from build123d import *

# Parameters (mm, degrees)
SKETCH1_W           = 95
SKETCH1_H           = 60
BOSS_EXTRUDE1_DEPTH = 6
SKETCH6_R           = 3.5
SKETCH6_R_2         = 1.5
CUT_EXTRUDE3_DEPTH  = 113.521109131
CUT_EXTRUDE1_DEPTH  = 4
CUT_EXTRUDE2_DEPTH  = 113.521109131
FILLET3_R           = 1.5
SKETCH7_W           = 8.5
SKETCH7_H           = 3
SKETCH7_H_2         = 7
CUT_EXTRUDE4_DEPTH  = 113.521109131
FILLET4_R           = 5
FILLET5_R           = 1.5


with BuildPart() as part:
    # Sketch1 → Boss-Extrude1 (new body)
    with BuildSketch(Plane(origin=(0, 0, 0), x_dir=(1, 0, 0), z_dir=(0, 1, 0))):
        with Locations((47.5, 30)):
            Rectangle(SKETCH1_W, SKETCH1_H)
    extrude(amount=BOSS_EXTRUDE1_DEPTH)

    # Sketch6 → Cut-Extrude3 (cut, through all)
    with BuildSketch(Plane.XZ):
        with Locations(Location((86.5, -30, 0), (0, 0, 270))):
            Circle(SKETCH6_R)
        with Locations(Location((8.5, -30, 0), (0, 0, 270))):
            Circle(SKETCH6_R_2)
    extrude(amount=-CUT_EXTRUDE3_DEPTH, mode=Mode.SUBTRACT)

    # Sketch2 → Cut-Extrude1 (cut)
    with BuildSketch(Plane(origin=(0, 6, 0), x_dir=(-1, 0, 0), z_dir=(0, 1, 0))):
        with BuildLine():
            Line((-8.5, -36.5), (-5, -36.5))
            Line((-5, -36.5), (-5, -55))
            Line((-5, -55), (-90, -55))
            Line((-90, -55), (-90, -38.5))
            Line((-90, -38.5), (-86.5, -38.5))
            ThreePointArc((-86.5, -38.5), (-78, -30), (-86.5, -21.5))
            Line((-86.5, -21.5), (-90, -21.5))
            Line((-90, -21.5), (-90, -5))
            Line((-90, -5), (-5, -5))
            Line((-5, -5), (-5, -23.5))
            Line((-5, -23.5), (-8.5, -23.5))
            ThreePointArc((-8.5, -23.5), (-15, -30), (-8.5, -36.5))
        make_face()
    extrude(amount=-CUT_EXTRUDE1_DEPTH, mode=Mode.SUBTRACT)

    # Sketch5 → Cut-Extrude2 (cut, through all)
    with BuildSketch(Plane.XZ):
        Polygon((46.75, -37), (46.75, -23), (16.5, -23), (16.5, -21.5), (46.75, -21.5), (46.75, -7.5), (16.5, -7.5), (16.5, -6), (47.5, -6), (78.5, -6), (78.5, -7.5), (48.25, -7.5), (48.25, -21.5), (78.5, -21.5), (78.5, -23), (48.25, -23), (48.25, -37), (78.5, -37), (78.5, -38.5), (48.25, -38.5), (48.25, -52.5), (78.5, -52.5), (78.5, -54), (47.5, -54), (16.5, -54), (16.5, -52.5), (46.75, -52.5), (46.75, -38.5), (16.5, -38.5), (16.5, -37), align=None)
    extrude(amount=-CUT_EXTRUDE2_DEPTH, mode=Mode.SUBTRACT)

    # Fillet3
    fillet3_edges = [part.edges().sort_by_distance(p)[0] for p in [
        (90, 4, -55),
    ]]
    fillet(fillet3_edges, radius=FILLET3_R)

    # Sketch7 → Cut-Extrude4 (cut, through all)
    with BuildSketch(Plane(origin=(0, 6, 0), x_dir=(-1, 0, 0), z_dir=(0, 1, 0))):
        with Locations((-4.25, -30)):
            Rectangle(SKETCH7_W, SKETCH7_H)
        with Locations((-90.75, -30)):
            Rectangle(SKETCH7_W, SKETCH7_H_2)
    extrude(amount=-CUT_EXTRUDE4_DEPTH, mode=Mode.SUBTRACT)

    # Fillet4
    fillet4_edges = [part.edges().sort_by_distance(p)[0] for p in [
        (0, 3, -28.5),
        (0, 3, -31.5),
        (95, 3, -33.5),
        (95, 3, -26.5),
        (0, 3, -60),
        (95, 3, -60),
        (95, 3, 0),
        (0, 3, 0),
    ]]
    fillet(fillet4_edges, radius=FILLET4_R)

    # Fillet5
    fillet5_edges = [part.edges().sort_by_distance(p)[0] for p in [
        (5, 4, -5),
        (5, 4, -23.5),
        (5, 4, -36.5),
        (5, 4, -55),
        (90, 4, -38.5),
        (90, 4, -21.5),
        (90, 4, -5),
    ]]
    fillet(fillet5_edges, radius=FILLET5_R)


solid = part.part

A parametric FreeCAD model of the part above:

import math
import FreeCAD as App
import Part
import Sketcher
from FreeCAD import Vector
Q = App.Units.Quantity


def edges_at(feature, points):
    """Names of the edges that pass closest to the given points."""
    edges = feature.Shape.Edges
    near = lambda p: min(range(len(edges)), key=lambda i: edges[i].distToShape(Part.Vertex(*p))[0])
    return sorted({f"Edge{near(p) + 1}" for p in points})

doc = App.newDocument("Part")
body = doc.addObject("PartDesign::Body", "Body")

sketch1 = doc.addObject("Sketcher::SketchObject", "Sketch")
body.addObject(sketch1)
sketch1.AttachmentSupport = (doc.XZ_Plane, [""])
sketch1.MapMode = "FlatFace"
sketch1.addGeometry(Part.LineSegment(Vector(0, -60, 0), Vector(0, 0, 0)), False)
sketch1.addGeometry(Part.LineSegment(Vector(0, 0, 0), Vector(95, 0, 0)), False)
sketch1.addGeometry(Part.LineSegment(Vector(95, 0, 0), Vector(95, -60, 0)), False)
sketch1.addGeometry(Part.LineSegment(Vector(95, -60, 0), Vector(0, -60, 0)), False)
sketch1.addConstraint(Sketcher.Constraint("Coincident", 0, 2, 1, 1))
sketch1.addConstraint(Sketcher.Constraint("Coincident", 1, 2, 2, 1))
sketch1.addConstraint(Sketcher.Constraint("Coincident", 2, 2, 3, 1))
sketch1.addConstraint(Sketcher.Constraint("Coincident", 3, 2, 0, 1))
sketch1.addConstraint(Sketcher.Constraint("Vertical", 0))
sketch1.addConstraint(Sketcher.Constraint("Horizontal", 1))
sketch1.addConstraint(Sketcher.Constraint("Vertical", 2))
sketch1.addConstraint(Sketcher.Constraint("Horizontal", 3))
sketch1.addConstraint(Sketcher.Constraint("Coincident", 0, 2, -1, 1))
sketch1.addConstraint(Sketcher.Constraint("DistanceX", 1, 1, 1, 2, Q("95 mm")))
sketch1.addConstraint(Sketcher.Constraint("DistanceY", 0, 1, 0, 2, Q("60 mm")))
pad1 = doc.addObject("PartDesign::Pad", "Pad")
body.addObject(pad1)
pad1.Profile = sketch1
pad1.Length = 6
pad1.Reversed = True

sketch2 = doc.addObject("Sketcher::SketchObject", "Sketch001")
body.addObject(sketch2)
sketch2.AttachmentSupport = (doc.XZ_Plane, [""])
sketch2.MapMode = "FlatFace"
sketch2.addGeometry(Part.Circle(Vector(86.5, -30, 0), Vector(0, 0, 1), 3.5), False)
sketch2.addGeometry(Part.Circle(Vector(8.5, -30, 0), Vector(0, 0, 1), 1.5), False)
sketch2.addConstraint(Sketcher.Constraint("Horizontal", 0, 3, 1, 3))
sketch2.addConstraint(Sketcher.Constraint("Diameter", 0, Q("7 mm")))
sketch2.addConstraint(Sketcher.Constraint("Diameter", 1, Q("3 mm")))
sketch2.addConstraint(Sketcher.Constraint("DistanceY", 0, 3, -1, 1, Q("30 mm")))
sketch2.addConstraint(Sketcher.Constraint("DistanceX", 1, 3, 0, 3, Q("78 mm")))
sketch2.addConstraint(Sketcher.Constraint("DistanceX", -1, 1, 0, 3, Q("86.5 mm")))
pocket1 = doc.addObject("PartDesign::Pocket", "Pocket")
body.addObject(pocket1)
pocket1.Profile = sketch2
pocket1.Type = "ThroughAll"

sketch3 = doc.addObject("Sketcher::SketchObject", "Sketch002")
body.addObject(sketch3)
sketch3.AttachmentSupport = (doc.XZ_Plane, [""])
sketch3.MapMode = "FlatFace"
sketch3.AttachmentOffset = App.Placement(Vector(0, 0, -6), App.Rotation())
sketch3.addGeometry(Part.LineSegment(Vector(5, -36.5, 0), Vector(8.5, -36.5, 0)), False)
sketch3.addGeometry(Part.ArcOfCircle(Part.Circle(Vector(8.5, -30, 0), Vector(0, 0, 1), 6.5), math.radians(-90), math.radians(90)), False)
sketch3.addGeometry(Part.LineSegment(Vector(8.5, -23.5, 0), Vector(5, -23.5, 0)), False)
sketch3.addGeometry(Part.LineSegment(Vector(5, -23.5, 0), Vector(5, -5, 0)), False)
sketch3.addGeometry(Part.LineSegment(Vector(5, -5, 0), Vector(90, -5, 0)), False)
sketch3.addGeometry(Part.LineSegment(Vector(90, -5, 0), Vector(90, -21.5, 0)), False)
sketch3.addGeometry(Part.LineSegment(Vector(90, -21.5, 0), Vector(86.5, -21.5, 0)), False)
sketch3.addGeometry(Part.ArcOfCircle(Part.Circle(Vector(86.5, -30, 0), Vector(0, 0, 1), 8.5), math.radians(90), math.radians(270)), False)
sketch3.addGeometry(Part.LineSegment(Vector(86.5, -38.5, 0), Vector(90, -38.5, 0)), False)
sketch3.addGeometry(Part.LineSegment(Vector(90, -38.5, 0), Vector(90, -55, 0)), False)
sketch3.addGeometry(Part.LineSegment(Vector(90, -55, 0), Vector(5, -55, 0)), False)
sketch3.addGeometry(Part.LineSegment(Vector(5, -55, 0), Vector(5, -36.5, 0)), False)
sketch3.addConstraint(Sketcher.Constraint("Tangent", 0, 2, 1, 1))
sketch3.addConstraint(Sketcher.Constraint("Tangent", 1, 2, 2, 1))
sketch3.addConstraint(Sketcher.Constraint("Coincident", 2, 2, 3, 1))
sketch3.addConstraint(Sketcher.Constraint("Coincident", 3, 2, 4, 1))
sketch3.addConstraint(Sketcher.Constraint("Coincident", 4, 2, 5, 1))
sketch3.addConstraint(Sketcher.Constraint("Coincident", 5, 2, 6, 1))
sketch3.addConstraint(Sketcher.Constraint("Tangent", 6, 2, 7, 1))
sketch3.addConstraint(Sketcher.Constraint("Tangent", 7, 2, 8, 1))
sketch3.addConstraint(Sketcher.Constraint("Coincident", 8, 2, 9, 1))
sketch3.addConstraint(Sketcher.Constraint("Coincident", 9, 2, 10, 1))
sketch3.addConstraint(Sketcher.Constraint("Coincident", 10, 2, 11, 1))
sketch3.addConstraint(Sketcher.Constraint("Coincident", 11, 2, 0, 1))
sketch3.addConstraint(Sketcher.Constraint("Horizontal", 0))
sketch3.addConstraint(Sketcher.Constraint("Horizontal", 2))
sketch3.addConstraint(Sketcher.Constraint("Vertical", 3))
sketch3.addConstraint(Sketcher.Constraint("Horizontal", 4))
sketch3.addConstraint(Sketcher.Constraint("Vertical", 5))
sketch3.addConstraint(Sketcher.Constraint("Horizontal", 6))
sketch3.addConstraint(Sketcher.Constraint("Horizontal", 8))
sketch3.addConstraint(Sketcher.Constraint("Vertical", 9))
sketch3.addConstraint(Sketcher.Constraint("Horizontal", 10))
sketch3.addConstraint(Sketcher.Constraint("Vertical", 11))
sketch3.addConstraint(Sketcher.Constraint("Horizontal", 1, 3, 7, 3))
sketch3.addConstraint(Sketcher.Constraint("Vertical", 5, 2, 8, 2))
sketch3.addConstraint(Sketcher.Constraint("Vertical", 3, 2, 10, 2))
sketch3.addConstraint(Sketcher.Constraint("Equal", 2, 6))
sketch3.addConstraint(Sketcher.Constraint("Equal", 5, 9))
sketch3.addConstraint(Sketcher.Constraint("Radius", 1, Q("6.5 mm")))
sketch3.addConstraint(Sketcher.Constraint("Radius", 7, Q("8.5 mm")))
sketch3.addConstraint(Sketcher.Constraint("DistanceX", 4, 1, 4, 2, Q("85 mm")))
sketch3.addConstraint(Sketcher.Constraint("DistanceX", 0, 1, 0, 2, Q("3.5 mm")))
sketch3.addConstraint(Sketcher.Constraint("DistanceY", 3, 1, 3, 2, Q("18.5 mm")))
sketch3.addConstraint(Sketcher.Constraint("DistanceY", 1, 3, -1, 1, Q("30 mm")))
sketch3.addConstraint(Sketcher.Constraint("DistanceX", -1, 1, 2, 2, Q("5 mm")))
pocket2 = doc.addObject("PartDesign::Pocket", "Pocket001")
body.addObject(pocket2)
pocket2.Profile = sketch3
pocket2.Length = 4
pocket2.Reversed = True

sketch4 = doc.addObject("Sketcher::SketchObject", "Sketch003")
body.addObject(sketch4)
sketch4.AttachmentSupport = (doc.XZ_Plane, [""])
sketch4.MapMode = "FlatFace"
sketch4.addGeometry(Part.LineSegment(Vector(46.75, -23, 0), Vector(46.75, -37, 0)), False)
sketch4.addGeometry(Part.LineSegment(Vector(46.75, -37, 0), Vector(16.5, -37, 0)), False)
sketch4.addGeometry(Part.LineSegment(Vector(16.5, -37, 0), Vector(16.5, -38.5, 0)), False)
sketch4.addGeometry(Part.LineSegment(Vector(16.5, -38.5, 0), Vector(46.75, -38.5, 0)), False)
sketch4.addGeometry(Part.LineSegment(Vector(46.75, -38.5, 0), Vector(46.75, -52.5, 0)), False)
sketch4.addGeometry(Part.LineSegment(Vector(46.75, -52.5, 0), Vector(16.5, -52.5, 0)), False)
sketch4.addGeometry(Part.LineSegment(Vector(16.5, -52.5, 0), Vector(16.5, -54, 0)), False)
sketch4.addGeometry(Part.LineSegment(Vector(16.5, -54, 0), Vector(78.5, -54, 0)), False)
sketch4.addGeometry(Part.LineSegment(Vector(78.5, -54, 0), Vector(78.5, -52.5, 0)), False)
sketch4.addGeometry(Part.LineSegment(Vector(78.5, -52.5, 0), Vector(48.25, -52.5, 0)), False)
sketch4.addGeometry(Part.LineSegment(Vector(48.25, -52.5, 0), Vector(48.25, -38.5, 0)), False)
sketch4.addGeometry(Part.LineSegment(Vector(48.25, -38.5, 0), Vector(78.5, -38.5, 0)), False)
sketch4.addGeometry(Part.LineSegment(Vector(78.5, -38.5, 0), Vector(78.5, -37, 0)), False)
sketch4.addGeometry(Part.LineSegment(Vector(78.5, -37, 0), Vector(48.25, -37, 0)), False)
sketch4.addGeometry(Part.LineSegment(Vector(48.25, -37, 0), Vector(48.25, -23, 0)), False)
sketch4.addGeometry(Part.LineSegment(Vector(48.25, -23, 0), Vector(78.5, -23, 0)), False)
sketch4.addGeometry(Part.LineSegment(Vector(78.5, -23, 0), Vector(78.5, -21.5, 0)), False)
sketch4.addGeometry(Part.LineSegment(Vector(78.5, -21.5, 0), Vector(48.25, -21.5, 0)), False)
sketch4.addGeometry(Part.LineSegment(Vector(48.25, -21.5, 0), Vector(48.25, -7.5, 0)), False)
sketch4.addGeometry(Part.LineSegment(Vector(48.25, -7.5, 0), Vector(78.5, -7.5, 0)), False)
sketch4.addGeometry(Part.LineSegment(Vector(78.5, -7.5, 0), Vector(78.5, -6, 0)), False)
sketch4.addGeometry(Part.LineSegment(Vector(78.5, -6, 0), Vector(16.5, -6, 0)), False)
sketch4.addGeometry(Part.LineSegment(Vector(16.5, -6, 0), Vector(16.5, -7.5, 0)), False)
sketch4.addGeometry(Part.LineSegment(Vector(16.5, -7.5, 0), Vector(46.75, -7.5, 0)), False)
sketch4.addGeometry(Part.LineSegment(Vector(46.75, -7.5, 0), Vector(46.75, -21.5, 0)), False)
sketch4.addGeometry(Part.LineSegment(Vector(46.75, -21.5, 0), Vector(16.5, -21.5, 0)), False)
sketch4.addGeometry(Part.LineSegment(Vector(16.5, -21.5, 0), Vector(16.5, -23, 0)), False)
sketch4.addGeometry(Part.LineSegment(Vector(16.5, -23, 0), Vector(46.75, -23, 0)), False)
sketch4.addConstraint(Sketcher.Constraint("Coincident", 0, 2, 1, 1))
sketch4.addConstraint(Sketcher.Constraint("Coincident", 1, 2, 2, 1))
sketch4.addConstraint(Sketcher.Constraint("Coincident", 2, 2, 3, 1))
sketch4.addConstraint(Sketcher.Constraint("Coincident", 3, 2, 4, 1))
sketch4.addConstraint(Sketcher.Constraint("Coincident", 4, 2, 5, 1))
sketch4.addConstraint(Sketcher.Constraint("Coincident", 5, 2, 6, 1))
sketch4.addConstraint(Sketcher.Constraint("Coincident", 6, 2, 7, 1))
sketch4.addConstraint(Sketcher.Constraint("Coincident", 7, 2, 8, 1))
sketch4.addConstraint(Sketcher.Constraint("Coincident", 8, 2, 9, 1))
sketch4.addConstraint(Sketcher.Constraint("Coincident", 9, 2, 10, 1))
sketch4.addConstraint(Sketcher.Constraint("Coincident", 10, 2, 11, 1))
sketch4.addConstraint(Sketcher.Constraint("Coincident", 11, 2, 12, 1))
sketch4.addConstraint(Sketcher.Constraint("Coincident", 12, 2, 13, 1))
sketch4.addConstraint(Sketcher.Constraint("Coincident", 13, 2, 14, 1))
sketch4.addConstraint(Sketcher.Constraint("Coincident", 14, 2, 15, 1))
sketch4.addConstraint(Sketcher.Constraint("Coincident", 15, 2, 16, 1))
sketch4.addConstraint(Sketcher.Constraint("Coincident", 16, 2, 17, 1))
sketch4.addConstraint(Sketcher.Constraint("Coincident", 17, 2, 18, 1))
sketch4.addConstraint(Sketcher.Constraint("Coincident", 18, 2, 19, 1))
sketch4.addConstraint(Sketcher.Constraint("Coincident", 19, 2, 20, 1))
sketch4.addConstraint(Sketcher.Constraint("Coincident", 20, 2, 21, 1))
sketch4.addConstraint(Sketcher.Constraint("Coincident", 21, 2, 22, 1))
sketch4.addConstraint(Sketcher.Constraint("Coincident", 22, 2, 23, 1))
sketch4.addConstraint(Sketcher.Constraint("Coincident", 23, 2, 24, 1))
sketch4.addConstraint(Sketcher.Constraint("Coincident", 24, 2, 25, 1))
sketch4.addConstraint(Sketcher.Constraint("Coincident", 25, 2, 26, 1))
sketch4.addConstraint(Sketcher.Constraint("Coincident", 26, 2, 27, 1))
sketch4.addConstraint(Sketcher.Constraint("Coincident", 27, 2, 0, 1))
sketch4.addConstraint(Sketcher.Constraint("Vertical", 0))
sketch4.addConstraint(Sketcher.Constraint("Horizontal", 1))
sketch4.addConstraint(Sketcher.Constraint("Vertical", 2))
sketch4.addConstraint(Sketcher.Constraint("Horizontal", 3))
sketch4.addConstraint(Sketcher.Constraint("Vertical", 4))
sketch4.addConstraint(Sketcher.Constraint("Horizontal", 5))
sketch4.addConstraint(Sketcher.Constraint("Vertical", 6))
sketch4.addConstraint(Sketcher.Constraint("Horizontal", 7))
sketch4.addConstraint(Sketcher.Constraint("Vertical", 8))
sketch4.addConstraint(Sketcher.Constraint("Horizontal", 9))
sketch4.addConstraint(Sketcher.Constraint("Vertical", 10))
sketch4.addConstraint(Sketcher.Constraint("Horizontal", 11))
sketch4.addConstraint(Sketcher.Constraint("Vertical", 12))
sketch4.addConstraint(Sketcher.Constraint("Horizontal", 13))
sketch4.addConstraint(Sketcher.Constraint("Vertical", 14))
sketch4.addConstraint(Sketcher.Constraint("Horizontal", 15))
sketch4.addConstraint(Sketcher.Constraint("Vertical", 16))
sketch4.addConstraint(Sketcher.Constraint("Horizontal", 17))
sketch4.addConstraint(Sketcher.Constraint("Vertical", 18))
sketch4.addConstraint(Sketcher.Constraint("Horizontal", 19))
sketch4.addConstraint(Sketcher.Constraint("Vertical", 20))
sketch4.addConstraint(Sketcher.Constraint("Horizontal", 21))
sketch4.addConstraint(Sketcher.Constraint("Vertical", 22))
sketch4.addConstraint(Sketcher.Constraint("Horizontal", 23))
sketch4.addConstraint(Sketcher.Constraint("Vertical", 24))
sketch4.addConstraint(Sketcher.Constraint("Horizontal", 25))
sketch4.addConstraint(Sketcher.Constraint("Vertical", 26))
sketch4.addConstraint(Sketcher.Constraint("Horizontal", 27))
sketch4.addConstraint(Sketcher.Constraint("Horizontal", 5, 2, 8, 2))
sketch4.addConstraint(Sketcher.Constraint("Horizontal", 3, 2, 10, 2))
sketch4.addConstraint(Sketcher.Constraint("Horizontal", 1, 2, 12, 2))
sketch4.addConstraint(Sketcher.Constraint("Horizontal", 19, 2, 22, 2))
sketch4.addConstraint(Sketcher.Constraint("Horizontal", 17, 2, 24, 2))
sketch4.addConstraint(Sketcher.Constraint("Horizontal", 15, 2, 26, 2))
sketch4.addConstraint(Sketcher.Constraint("Vertical", 0, 2, 3, 2))
sketch4.addConstraint(Sketcher.Constraint("Vertical", 2, 2, 5, 2))
sketch4.addConstraint(Sketcher.Constraint("Vertical", 8, 2, 11, 2))
sketch4.addConstraint(Sketcher.Constraint("Vertical", 10, 2, 13, 2))
sketch4.addConstraint(Sketcher.Constraint("Vertical", 12, 2, 15, 2))
sketch4.addConstraint(Sketcher.Constraint("Vertical", 14, 2, 17, 2))
sketch4.addConstraint(Sketcher.Constraint("Vertical", 16, 2, 19, 2))
sketch4.addConstraint(Sketcher.Constraint("Vertical", 6, 2, 21, 2))
sketch4.addConstraint(Sketcher.Constraint("Vertical", 4, 2, 23, 2))
sketch4.addConstraint(Sketcher.Constraint("Vertical", 22, 2, 25, 2))
sketch4.addConstraint(Sketcher.Constraint("Equal", 5, 9))
sketch4.addConstraint(Sketcher.Constraint("Equal", 0, 4))
sketch4.addConstraint(Sketcher.Constraint("Equal", 2, 6))
sketch4.addConstraint(Sketcher.Constraint("Equal", 12, 16))
sketch4.addConstraint(Sketcher.Constraint("Equal", 14, 18))
sketch4.addConstraint(Sketcher.Constraint("Equal", 16, 20))
sketch4.addConstraint(Sketcher.Constraint("DistanceX", 7, 1, 7, 2, Q("62 mm")))
sketch4.addConstraint(Sketcher.Constraint("DistanceY", 0, 2, 0, 1, Q("14 mm")))
sketch4.addConstraint(Sketcher.Constraint("DistanceY", 2, 2, 2, 1, Q("1.5 mm")))
sketch4.addConstraint(Sketcher.Constraint("DistanceY", 0, 2, -1, 1, Q("37 mm")))
sketch4.addConstraint(Sketcher.Constraint("DistanceX", 1, 2, 1, 1, Q("30.25 mm")))
sketch4.addConstraint(Sketcher.Constraint("DistanceX", -1, 1, 1, 2, Q("16.5 mm")))
pocket3 = doc.addObject("PartDesign::Pocket", "Pocket002")
body.addObject(pocket3)
pocket3.Profile = sketch4
pocket3.Type = "ThroughAll"
doc.recompute()

fillet = doc.addObject("PartDesign::Fillet", "Fillet")
body.addObject(fillet)
fillet.Base = (pocket3, edges_at(pocket3, [(90, 4, -55)]))
fillet.Radius = 1.5

sketch5 = doc.addObject("Sketcher::SketchObject", "Sketch004")
body.addObject(sketch5)
sketch5.AttachmentSupport = (doc.XZ_Plane, [""])
sketch5.MapMode = "FlatFace"
sketch5.AttachmentOffset = App.Placement(Vector(0, 0, -6), App.Rotation())
sketch5.addGeometry(Part.LineSegment(Vector(8.5, -28.5, 0), Vector(8.5, -31.5, 0)), False)
sketch5.addGeometry(Part.LineSegment(Vector(8.5, -31.5, 0), Vector(0, -31.5, 0)), False)
sketch5.addGeometry(Part.LineSegment(Vector(0, -31.5, 0), Vector(0, -28.5, 0)), False)
sketch5.addGeometry(Part.LineSegment(Vector(0, -28.5, 0), Vector(8.5, -28.5, 0)), False)
sketch5.addGeometry(Part.LineSegment(Vector(95, -26.5, 0), Vector(95, -33.5, 0)), False)
sketch5.addGeometry(Part.LineSegment(Vector(95, -33.5, 0), Vector(86.5, -33.5, 0)), False)
sketch5.addGeometry(Part.LineSegment(Vector(86.5, -33.5, 0), Vector(86.5, -26.5, 0)), False)
sketch5.addGeometry(Part.LineSegment(Vector(86.5, -26.5, 0), Vector(95, -26.5, 0)), False)
sketch5.addConstraint(Sketcher.Constraint("Coincident", 0, 2, 1, 1))
sketch5.addConstraint(Sketcher.Constraint("Coincident", 1, 2, 2, 1))
sketch5.addConstraint(Sketcher.Constraint("Coincident", 2, 2, 3, 1))
sketch5.addConstraint(Sketcher.Constraint("Coincident", 3, 2, 0, 1))
sketch5.addConstraint(Sketcher.Constraint("Coincident", 4, 2, 5, 1))
sketch5.addConstraint(Sketcher.Constraint("Coincident", 5, 2, 6, 1))
sketch5.addConstraint(Sketcher.Constraint("Coincident", 6, 2, 7, 1))
sketch5.addConstraint(Sketcher.Constraint("Coincident", 7, 2, 4, 1))
sketch5.addConstraint(Sketcher.Constraint("Vertical", 0))
sketch5.addConstraint(Sketcher.Constraint("Horizontal", 1))
sketch5.addConstraint(Sketcher.Constraint("Vertical", 2))
sketch5.addConstraint(Sketcher.Constraint("Horizontal", 3))
sketch5.addConstraint(Sketcher.Constraint("Vertical", 4))
sketch5.addConstraint(Sketcher.Constraint("Horizontal", 5))
sketch5.addConstraint(Sketcher.Constraint("Vertical", 6))
sketch5.addConstraint(Sketcher.Constraint("Horizontal", 7))
sketch5.addConstraint(Sketcher.Constraint("PointOnObject", 1, 2, -2))
sketch5.addConstraint(Sketcher.Constraint("Equal", 3, 5))
sketch5.addConstraint(Sketcher.Constraint("DistanceY", 0, 2, 0, 1, Q("3 mm")))
sketch5.addConstraint(Sketcher.Constraint("DistanceY", 4, 2, 4, 1, Q("7 mm")))
sketch5.addConstraint(Sketcher.Constraint("DistanceX", 1, 2, 1, 1, Q("8.5 mm")))
sketch5.addConstraint(Sketcher.Constraint("DistanceX", -1, 1, 4, 2, Q("95 mm")))
sketch5.addConstraint(Sketcher.Constraint("DistanceY", 4, 2, 0, 2, Q("2 mm")))
sketch5.addConstraint(Sketcher.Constraint("DistanceY", 0, 2, -1, 1, Q("31.5 mm")))
pocket4 = doc.addObject("PartDesign::Pocket", "Pocket003")
body.addObject(pocket4)
pocket4.Profile = sketch5
pocket4.Type = "ThroughAll"
pocket4.Reversed = True
doc.recompute()

fillet2 = doc.addObject("PartDesign::Fillet", "Fillet001")
body.addObject(fillet2)
fillet2.Base = (pocket4, edges_at(pocket4, [
    (0, 3, -28.5),
    (0, 3, -31.5),
    (95, 3, -33.5),
    (95, 3, -26.5),
    (0, 3, -60),
    (95, 3, -60),
    (95, 3, 0),
    (0, 3, 0),
]))
fillet2.Radius = 5
doc.recompute()

fillet3 = doc.addObject("PartDesign::Fillet", "Fillet002")
body.addObject(fillet3)
fillet3.Base = (fillet2, edges_at(fillet2, [
    (5, 4, -5),
    (5, 4, -23.5),
    (5, 4, -36.5),
    (5, 4, -55),
    (90, 4, -38.5),
    (90, 4, -21.5),
    (90, 4, -5),
]))
fillet3.Radius = 1.5

doc.recompute()
